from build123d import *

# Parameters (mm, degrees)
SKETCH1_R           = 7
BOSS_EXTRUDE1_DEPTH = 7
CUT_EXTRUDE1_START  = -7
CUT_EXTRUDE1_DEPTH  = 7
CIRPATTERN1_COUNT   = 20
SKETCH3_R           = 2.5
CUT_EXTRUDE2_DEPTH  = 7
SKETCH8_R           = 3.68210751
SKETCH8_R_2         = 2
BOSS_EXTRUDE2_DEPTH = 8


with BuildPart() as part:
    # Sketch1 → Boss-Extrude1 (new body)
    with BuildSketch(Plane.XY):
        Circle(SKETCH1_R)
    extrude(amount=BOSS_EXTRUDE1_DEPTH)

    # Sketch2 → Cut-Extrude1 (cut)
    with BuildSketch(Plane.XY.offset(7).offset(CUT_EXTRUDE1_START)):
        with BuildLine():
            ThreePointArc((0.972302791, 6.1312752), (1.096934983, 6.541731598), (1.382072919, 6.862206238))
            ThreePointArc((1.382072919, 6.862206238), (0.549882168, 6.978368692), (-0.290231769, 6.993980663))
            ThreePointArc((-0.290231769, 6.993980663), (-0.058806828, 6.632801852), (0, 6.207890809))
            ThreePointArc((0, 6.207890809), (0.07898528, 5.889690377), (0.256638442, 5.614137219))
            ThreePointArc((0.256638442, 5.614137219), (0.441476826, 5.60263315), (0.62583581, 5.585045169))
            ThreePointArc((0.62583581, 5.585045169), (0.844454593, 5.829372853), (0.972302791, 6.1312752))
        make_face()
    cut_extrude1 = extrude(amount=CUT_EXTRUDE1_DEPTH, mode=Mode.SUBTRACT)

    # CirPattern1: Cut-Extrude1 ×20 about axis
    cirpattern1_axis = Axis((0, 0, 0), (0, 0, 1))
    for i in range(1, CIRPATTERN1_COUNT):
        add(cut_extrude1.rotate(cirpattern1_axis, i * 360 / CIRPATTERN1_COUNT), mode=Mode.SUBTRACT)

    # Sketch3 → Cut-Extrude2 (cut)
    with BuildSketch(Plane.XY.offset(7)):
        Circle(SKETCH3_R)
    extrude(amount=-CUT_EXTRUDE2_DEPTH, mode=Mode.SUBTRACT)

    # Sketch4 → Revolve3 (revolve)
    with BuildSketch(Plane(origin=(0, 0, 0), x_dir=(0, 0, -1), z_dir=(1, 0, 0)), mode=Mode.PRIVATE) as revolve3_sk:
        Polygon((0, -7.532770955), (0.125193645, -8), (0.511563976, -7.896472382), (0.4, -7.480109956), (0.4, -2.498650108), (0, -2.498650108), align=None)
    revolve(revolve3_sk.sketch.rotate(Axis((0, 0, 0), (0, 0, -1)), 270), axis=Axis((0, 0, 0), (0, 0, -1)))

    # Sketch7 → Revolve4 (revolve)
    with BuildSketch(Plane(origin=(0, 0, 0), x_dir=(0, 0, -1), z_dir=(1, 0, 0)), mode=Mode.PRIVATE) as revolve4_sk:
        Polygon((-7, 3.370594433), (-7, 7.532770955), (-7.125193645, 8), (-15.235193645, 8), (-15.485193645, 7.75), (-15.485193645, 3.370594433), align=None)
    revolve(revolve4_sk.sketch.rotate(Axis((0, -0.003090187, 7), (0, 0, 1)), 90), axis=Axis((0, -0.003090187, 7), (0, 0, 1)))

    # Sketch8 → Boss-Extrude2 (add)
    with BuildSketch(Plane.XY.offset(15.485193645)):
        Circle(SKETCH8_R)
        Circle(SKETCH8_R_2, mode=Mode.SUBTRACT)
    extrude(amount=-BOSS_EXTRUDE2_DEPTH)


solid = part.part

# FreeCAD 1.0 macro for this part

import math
import FreeCAD as App
import Part
import Sketcher
from FreeCAD import Vector
Q = App.Units.Quantity


def add_polygon(sketch, points):
    """Adds a closed chain of lines whose ends are joined by coincident constraints."""
    first, n = sketch.GeometryCount, len(points)
    for a, b in zip(points, points[1:] + points[:1]):
        sketch.addGeometry(Part.LineSegment(App.Vector(*a, 0), App.Vector(*b, 0)), False)
    for i in range(n):
        sketch.addConstraint(Sketcher.Constraint("Coincident", first + i, 2, first + (i + 1) % n, 1))

doc = App.newDocument("Part")
body = doc.addObject("PartDesign::Body", "Body")

sketch1 = body.newObject("Sketcher::SketchObject", "Sketch")
sketch1.AttachmentSupport = (doc.getObject("XY_Plane"), [""])
sketch1.MapMode = "FlatFace"
sketch1.addGeometry(Part.Circle(Vector(0, 0, 0), Vector(0, 0, 1), 7), False)
sketch1.addConstraint([
    Sketcher.Constraint("Coincident", 0, 3, -1, 1),
    Sketcher.Constraint("Diameter", 0, Q("14 mm")),
])
pad1 = body.newObject("PartDesign::Pad", "Pad")
pad1.Profile = sketch1
pad1.Length = 7

sketch2 = body.newObject("Sketcher::SketchObject", "Sketch001")
sketch2.AttachmentSupport = (doc.getObject("XY_Plane"), [""])
sketch2.MapMode = "FlatFace"
sketch2.addGeometry([
    Part.ArcOfCircle(Part.Circle(Vector(1.97, 6.05, 0), Vector(0, 0, 1), 1), math.radians(126), math.radians(175)),
    Part.ArcOfCircle(Part.Circle(Vector(0, 0, 0), Vector(0, 0, 1), 7), math.radians(78.61), math.radians(92.38)),
    Part.ArcOfCircle(Part.Circle(Vector(-1, 6.29, 0), Vector(0, 0, 1), 1), math.radians(-5), math.radians(45)),
    Part.ArcOfCircle(Part.Circle(Vector(1, 6.29, 0), Vector(0, 0, 1), 1), math.radians(-175), math.radians(-138)),
    Part.ArcOfCircle(Part.Circle(Vector(0, 0, 0), Vector(0, 0, 1), 5.62), math.radians(83.61), math.radians(87.38)),
    Part.ArcOfCircle(Part.Circle(Vector(0, 6.36, 0), Vector(0, 0, 1), 1), math.radians(-51), math.radians(-14)),
], False)
sketch2.addConstraint([
    Sketcher.Constraint("Coincident", 0, 1, 1, 1),
    Sketcher.Constraint("Coincident", 1, 2, 2, 2),
    Sketcher.Constraint("Coincident", 2, 1, 3, 1),
    Sketcher.Constraint("Coincident", 3, 2, 4, 2),
    Sketcher.Constraint("Coincident", 4, 1, 5, 1),
    Sketcher.Constraint("Coincident", 5, 2, 0, 2),
    Sketcher.Constraint("Coincident", 1, 3, -1, 1),
    Sketcher.Constraint("Coincident", 4, 3, -1, 1),
    Sketcher.Constraint("Equal", 0, 2),
    Sketcher.Constraint("Equal", 2, 3),
    Sketcher.Constraint("Equal", 3, 5),
    Sketcher.Constraint("Symmetric", 2, 3, 3, 3, -2),
    Sketcher.Constraint("PointOnObject", 5, 3, -2),
    Sketcher.Constraint("Radius", 0, Q("1 mm")),
    Sketcher.Constraint("Radius", 1, Q("7 mm")),
    Sketcher.Constraint("Radius", 4, Q("5.62 mm")),
    Sketcher.Constraint("DistanceY", -1, 1, 5, 3, Q("6.365 mm")),
    Sketcher.Constraint("DistanceY", 4, 1, 3, 3, Q("0.7014 mm")),
    Sketcher.Constraint("DistanceY", -1, 1, 0, 3, Q("6.052721 mm")),
    Sketcher.Constraint("DistanceX", 2, 3, -1, 1, Q("0.99691 mm")),
    Sketcher.Constraint("DistanceY", 3, 3, 0, 1, Q("0.575761 mm")),
])
pocket1 = body.newObject("PartDesign::Pocket", "Pocket")
pocket1.Profile = sketch2
pocket1.Length = 7
pocket1.Reversed = True
doc.recompute()

polarpattern = body.newObject("PartDesign::PolarPattern", "PolarPattern")
polarpattern.Originals = [pocket1]
polarpattern.Axis = (doc.getObject("Z_Axis"), [""])
polarpattern.Angle = 360
polarpattern.Occurrences = 20
body.Tip = polarpattern

sketch3 = body.newObject("Sketcher::SketchObject", "Sketch002")
sketch3.AttachmentSupport = (doc.getObject("XY_Plane"), [""])
sketch3.MapMode = "FlatFace"
sketch3.AttachmentOffset = App.Placement(Vector(0, 0, 7), App.Rotation())
sketch3.addGeometry(Part.Circle(Vector(0, 0, 0), Vector(0, 0, 1), 2.5), False)
sketch3.addConstraint([
    Sketcher.Constraint("Coincident", 0, 3, -1, 1),
    Sketcher.Constraint("Diameter", 0, Q("5 mm")),
])
pocket2 = body.newObject("PartDesign::Pocket", "Pocket001")
pocket2.Profile = sketch3
pocket2.Length = 7

sketch4 = body.newObject("Sketcher::SketchObject", "Sketch003")
sketch4.AttachmentSupport = (doc.getObject("YZ_Plane"), [""])
sketch4.MapMode = "FlatFace"
add_polygon(sketch4, [(-7.53, 0), (-8, -0.13), (-7.9, -0.51), (-7.48, -0.4), (-2.5, -0.4), (-2.5, 0)])
sketch4.addConstraint([
    Sketcher.Constraint("Horizontal", 3),
    Sketcher.Constraint("Vertical", 4),
    Sketcher.Constraint("Horizontal", 5),
    Sketcher.Constraint("PointOnObject", 4, 2, -1),
    Sketcher.Constraint("Perpendicular", 0, 1),
    Sketcher.Constraint("Perpendicular", 1, 2),
    Sketcher.Constraint("Angle", 0, Q("-165 deg")),
    Sketcher.Constraint("DistanceY", 4, 1, 4, 2, Q("0.4 mm")),
    Sketcher.Constraint("DistanceX", 0, 2, -1, 1, Q("8 mm")),
    Sketcher.Constraint("Distance", 1, Q("0.4 mm")),
    Sketcher.Constraint("DistanceX", 3, 1, 3, 2, Q("4.98146 mm")),
    Sketcher.Constraint("DistanceX", 1, 2, 5, 2, Q("0.363701 mm")),
])
revolution = body.newObject("PartDesign::Revolution", "Revolution")
revolution.Profile = sketch4
revolution.ReferenceAxis = (sketch4, ["V_Axis"])
revolution.Angle = 360

sketch5 = body.newObject("Sketcher::SketchObject", "Sketch004")
sketch5.AttachmentSupport = (doc.getObject("YZ_Plane"), [""])
sketch5.MapMode = "FlatFace"
add_polygon(sketch5, [(3.37, 7), (7.53, 7), (8, 7.13), (8, 15.24), (7.75, 15.49), (3.37, 15.49)])
sketch5.addGeometry(Part.LineSegment(Vector(0, 7, 0), Vector(0, 15.49, 0)), True)
sketch5.addConstraint([
    Sketcher.Constraint("Horizontal", 0),
    Sketcher.Constraint("Vertical", 2),
    Sketcher.Constraint("Horizontal", 4),
    Sketcher.Constraint("Vertical", 5),
    Sketcher.Constraint("Vertical", 6),
    Sketcher.Constraint("Horizontal", 5, 2, 6, 1),
    Sketcher.Constraint("Horizontal", 4, 2, 6, 2),
    Sketcher.Constraint("Angle", 1, Q("15 deg")),
    Sketcher.Constraint("Angle", 3, Q("135 deg")),
    Sketcher.Constraint("DistanceY", -1, 1, 0, 2, Q("7 mm")),
    Sketcher.Constraint("DistanceX", -1, 1, 1, 2, Q("8 mm")),
    Sketcher.Constraint("DistanceY", 2, 1, 2, 2, Q("8.11 mm")),
    Sketcher.Constraint("DistanceX", -1, 1, 3, 2, Q("7.75 mm")),
    Sketcher.Constraint("Distance", 1, Q("0.483711 mm")),
    Sketcher.Constraint("DistanceX", 0, 1, 0, 2, Q("4.162177 mm")),
    Sketcher.Constraint("DistanceX", 6, 1, -1, 1, Q("0.00309 mm")),
])
revolution2 = body.newObject("PartDesign::Revolution", "Revolution001")
revolution2.Profile = sketch5
revolution2.ReferenceAxis = (sketch5, ["Axis0"])
revolution2.Angle = 360

sketch6 = body.newObject("Sketcher::SketchObject", "Sketch005")
sketch6.AttachmentSupport = (doc.getObject("XY_Plane"), [""])
sketch6.MapMode = "FlatFace"
sketch6.AttachmentOffset = App.Placement(Vector(0, 0, 15.485194), App.Rotation())
sketch6.addGeometry([
    Part.Circle(Vector(0, 0, 0), Vector(0, 0, 1), 3.7),
    Part.Circle(Vector(0, 0, 0), Vector(0, 0, 1), 2),
], False)
sketch6.addConstraint([
    Sketcher.Constraint("Coincident", 0, 3, -1, 1),
    Sketcher.Constraint("Coincident", 1, 3, -1, 1),
    Sketcher.Constraint("Diameter", 1, Q("4 mm")),
    Sketcher.Constraint("Diameter", 0, Q("7.364215 mm")),
])
pad2 = body.newObject("PartDesign::Pad", "Pad001")
pad2.Profile = sketch6
pad2.Length = 8
pad2.Reversed = True

doc.recompute()
